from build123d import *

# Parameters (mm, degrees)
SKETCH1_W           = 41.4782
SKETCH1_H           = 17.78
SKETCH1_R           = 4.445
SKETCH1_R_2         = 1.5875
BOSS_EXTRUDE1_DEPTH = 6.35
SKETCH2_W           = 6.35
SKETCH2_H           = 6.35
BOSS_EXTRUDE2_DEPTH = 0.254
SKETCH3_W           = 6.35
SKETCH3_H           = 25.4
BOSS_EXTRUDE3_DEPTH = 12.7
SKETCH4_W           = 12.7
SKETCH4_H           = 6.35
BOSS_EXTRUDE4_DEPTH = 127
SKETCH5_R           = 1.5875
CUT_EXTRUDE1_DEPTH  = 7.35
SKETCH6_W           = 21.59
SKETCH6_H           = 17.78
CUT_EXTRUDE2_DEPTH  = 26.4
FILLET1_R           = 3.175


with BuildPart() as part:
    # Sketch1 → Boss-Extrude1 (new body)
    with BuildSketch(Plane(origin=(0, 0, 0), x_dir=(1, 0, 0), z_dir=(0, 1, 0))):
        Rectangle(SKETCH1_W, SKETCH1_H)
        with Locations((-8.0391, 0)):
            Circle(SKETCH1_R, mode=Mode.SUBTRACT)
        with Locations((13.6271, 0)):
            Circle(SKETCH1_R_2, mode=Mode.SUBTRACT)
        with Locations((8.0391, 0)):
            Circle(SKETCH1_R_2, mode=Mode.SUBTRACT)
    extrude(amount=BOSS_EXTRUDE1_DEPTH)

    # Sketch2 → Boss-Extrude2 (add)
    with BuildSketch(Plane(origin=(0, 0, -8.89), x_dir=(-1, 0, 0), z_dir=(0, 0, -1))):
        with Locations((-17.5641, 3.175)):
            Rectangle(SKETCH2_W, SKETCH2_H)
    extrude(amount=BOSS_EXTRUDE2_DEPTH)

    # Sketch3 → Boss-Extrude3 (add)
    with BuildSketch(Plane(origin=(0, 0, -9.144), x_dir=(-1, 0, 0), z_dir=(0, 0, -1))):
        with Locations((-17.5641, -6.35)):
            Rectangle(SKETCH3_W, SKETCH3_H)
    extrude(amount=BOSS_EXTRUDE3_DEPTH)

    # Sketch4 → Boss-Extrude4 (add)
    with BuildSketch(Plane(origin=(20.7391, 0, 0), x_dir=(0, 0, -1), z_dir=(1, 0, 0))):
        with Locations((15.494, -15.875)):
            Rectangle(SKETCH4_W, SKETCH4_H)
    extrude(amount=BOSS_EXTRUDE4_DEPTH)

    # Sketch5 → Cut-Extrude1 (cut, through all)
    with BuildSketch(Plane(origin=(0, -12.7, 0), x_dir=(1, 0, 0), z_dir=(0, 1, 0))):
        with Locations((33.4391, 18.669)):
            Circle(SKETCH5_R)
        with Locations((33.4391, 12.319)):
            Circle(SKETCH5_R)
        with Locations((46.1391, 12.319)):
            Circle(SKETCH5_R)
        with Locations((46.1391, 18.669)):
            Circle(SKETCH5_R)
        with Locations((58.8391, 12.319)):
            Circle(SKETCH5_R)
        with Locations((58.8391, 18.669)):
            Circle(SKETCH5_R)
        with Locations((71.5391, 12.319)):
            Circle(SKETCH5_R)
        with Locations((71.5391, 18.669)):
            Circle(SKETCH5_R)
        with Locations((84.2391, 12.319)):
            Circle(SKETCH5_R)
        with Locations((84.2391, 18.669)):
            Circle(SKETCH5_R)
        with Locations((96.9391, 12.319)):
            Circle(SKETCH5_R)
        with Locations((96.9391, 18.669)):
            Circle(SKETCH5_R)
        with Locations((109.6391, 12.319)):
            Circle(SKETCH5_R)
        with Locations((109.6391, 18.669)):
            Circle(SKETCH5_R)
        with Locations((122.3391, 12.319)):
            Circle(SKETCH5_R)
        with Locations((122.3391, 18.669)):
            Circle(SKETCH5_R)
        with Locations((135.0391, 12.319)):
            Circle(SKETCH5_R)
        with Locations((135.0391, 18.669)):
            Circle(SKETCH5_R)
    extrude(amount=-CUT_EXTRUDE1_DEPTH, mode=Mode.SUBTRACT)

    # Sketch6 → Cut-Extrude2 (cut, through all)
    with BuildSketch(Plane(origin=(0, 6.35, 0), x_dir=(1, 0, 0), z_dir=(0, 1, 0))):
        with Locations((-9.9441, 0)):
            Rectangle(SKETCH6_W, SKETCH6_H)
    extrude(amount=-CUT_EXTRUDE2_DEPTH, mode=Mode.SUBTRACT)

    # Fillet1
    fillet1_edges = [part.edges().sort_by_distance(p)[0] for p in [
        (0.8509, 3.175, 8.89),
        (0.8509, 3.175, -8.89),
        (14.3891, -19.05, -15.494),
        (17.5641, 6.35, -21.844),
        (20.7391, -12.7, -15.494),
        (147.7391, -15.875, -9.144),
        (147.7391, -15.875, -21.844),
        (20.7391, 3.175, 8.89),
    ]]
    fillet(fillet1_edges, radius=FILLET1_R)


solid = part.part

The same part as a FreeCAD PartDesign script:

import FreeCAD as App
import Part
import Sketcher
from FreeCAD import Vector
Q = App.Units.Quantity


def edges_at(feature, points):
    """Names of the edges that pass closest to the given points."""
    edges = feature.Shape.Edges
    near = lambda p: min(range(len(edges)), key=lambda i: edges[i].distToShape(Part.Vertex(*p))[0])
    return sorted({f"Edge{near(p) + 1}" for p in points})


def add_polygon(sketch, points):
    """Adds a closed chain of lines whose ends are joined by coincident constraints."""
    first, n = sketch.GeometryCount, len(points)
    for a, b in zip(points, points[1:] + points[:1]):
        sketch.addGeometry(Part.LineSegment(App.Vector(*a, 0), App.Vector(*b, 0)), False)
    for i in range(n):
        sketch.addConstraint(Sketcher.Constraint("Coincident", first + i, 2, first + (i + 1) % n, 1))

doc = App.newDocument("Part")
body = doc.addObject("PartDesign::Body", "Body")

# Sketch on XZ plane
sketch1 = body.newObject("Sketcher::SketchObject", "Sketch")
sketch1.AttachmentSupport = (doc.getObject("XZ_Plane"), [""])
sketch1.MapMode = "FlatFace"
add_polygon(sketch1, [(-20.7, -8.9), (-20.7, 8.9), (20.7, 8.9), (20.7, -8.9)])  # lines 0-3
sketch1.addGeometry(Part.Circle(Vector(-8, 0, 0), Vector(0, 0, 1), 4.4), False)  # 4
sketch1.addGeometry(Part.Circle(Vector(8, 0, 0), Vector(0, 0, 1), 1.6), False)  # 5
sketch1.addGeometry(Part.Circle(Vector(13.6, 0, 0), Vector(0, 0, 1), 1.6), False)  # 6
sketch1.addConstraint(Sketcher.Constraint("Vertical", 0))
sketch1.addConstraint(Sketcher.Constraint("Horizontal", 1))
sketch1.addConstraint(Sketcher.Constraint("Vertical", 2))
sketch1.addConstraint(Sketcher.Constraint("Horizontal", 3))
sketch1.addConstraint(Sketcher.Constraint("Equal", 5, 6))
sketch1.addConstraint(Sketcher.Constraint("Symmetric", 4, 3, 5, 3, -1, 1))
sketch1.addConstraint(Sketcher.Constraint("Symmetric", 0, 2, 2, 2, -1, 1))
sketch1.addConstraint(Sketcher.Constraint("PointOnObject", 4, 3, -1))
sketch1.addConstraint(Sketcher.Constraint("PointOnObject", 6, 3, -1))
sketch1.addConstraint(Sketcher.Constraint("Diameter", 4, Q("0.35 in")))
sketch1.addConstraint(Sketcher.Constraint("Diameter", 5, Q("0.125 in")))
sketch1.addConstraint(Sketcher.Constraint("DistanceY", 0, 1, 0, 2, Q("0.7 in")))
sketch1.addConstraint(Sketcher.Constraint("DistanceX", 0, 2, 4, 3, Q("0.5 in")))
sketch1.addConstraint(Sketcher.Constraint("DistanceX", 1, 1, 1, 2, Q("1.633 in")))
sketch1.addConstraint(Sketcher.Constraint("DistanceX", 5, 3, 6, 3, Q("0.22 in")))
pad1 = body.newObject("PartDesign::Pad", "Pad")
pad1.Profile = sketch1
pad1.Length = Q("0.25 in")
pad1.Reversed = True

# Sketch on XY plane
sketch2 = body.newObject("Sketcher::SketchObject", "Sketch001")
sketch2.AttachmentSupport = (doc.getObject("XY_Plane"), [""])
sketch2.MapMode = "FlatFace"
sketch2.AttachmentOffset = App.Placement(Vector(0, 0, -0.35 * 25.4), App.Rotation())
add_polygon(sketch2, [(21, 6), (21, 0), (14, 0), (14, 6)])  # lines 0-3
sketch2.addConstraint(Sketcher.Constraint("Vertical", 0))
sketch2.addConstraint(Sketcher.Constraint("Horizontal", 1))
sketch2.addConstraint(Sketcher.Constraint("Vertical", 2))
sketch2.addConstraint(Sketcher.Constraint("Horizontal", 3))
sketch2.addConstraint(Sketcher.Constraint("PointOnObject", 0, 2, -1))
sketch2.addConstraint(Sketcher.Constraint("Equal", 3, 0))
sketch2.addConstraint(Sketcher.Constraint("DistanceX", 1, 2, 1, 1, Q("0.25 in")))
sketch2.addConstraint(Sketcher.Constraint("DistanceX", -1, 1, 0, 2, Q("0.8165 in")))
pad2 = body.newObject("PartDesign::Pad", "Pad001")
pad2.Profile = sketch2
pad2.Length = Q("0.01 in")
pad2.Reversed = True

# Sketch on XY plane
sketch3 = body.newObject("Sketcher::SketchObject", "Sketch002")
sketch3.AttachmentSupport = (doc.getObject("XY_Plane"), [""])
sketch3.MapMode = "FlatFace"
sketch3.AttachmentOffset = App.Placement(Vector(0, 0, -0.36 * 25.4), App.Rotation())
add_polygon(sketch3, [(21, 6), (21, -19), (14, -19), (14, 6)])  # lines 0-3
sketch3.addConstraint(Sketcher.Constraint("Vertical", 0))
sketch3.addConstraint(Sketcher.Constraint("Horizontal", 1))
sketch3.addConstraint(Sketcher.Constraint("Vertical", 2))
sketch3.addConstraint(Sketcher.Constraint("Horizontal", 3))
sketch3.addConstraint(Sketcher.Constraint("DistanceY", 0, 2, 0, 1, Q("1 in")))
sketch3.addConstraint(Sketcher.Constraint("DistanceX", 1, 2, 1, 1, Q("0.25 in")))
sketch3.addConstraint(Sketcher.Constraint("DistanceY", 0, 2, -1, 1, Q("0.75 in")))
sketch3.addConstraint(Sketcher.Constraint("DistanceX", -1, 1, 0, 2, Q("0.8165 in")))
pad3 = body.newObject("PartDesign::Pad", "Pad002")
pad3.Profile = sketch3
pad3.Length = Q("0.5 in")
pad3.Reversed = True

# Sketch on YZ plane
sketch4 = body.newObject("Sketcher::SketchObject", "Sketch003")
sketch4.AttachmentSupport = (doc.getObject("YZ_Plane"), [""])
sketch4.MapMode = "FlatFace"
sketch4.AttachmentOffset = App.Placement(Vector(0, 0, 0.8165 * 25.4), App.Rotation())
add_polygon(sketch4, [(-13, -9), (-19, -9), (-19, -22), (-13, -22)])  # lines 0-3
sketch4.addConstraint(Sketcher.Constraint("Horizontal", 0))
sketch4.addConstraint(Sketcher.Constraint("Vertical", 1))
sketch4.addConstraint(Sketcher.Constraint("Horizontal", 2))
sketch4.addConstraint(Sketcher.Constraint("Vertical", 3))
sketch4.addConstraint(Sketcher.Constraint("DistanceY", 1, 2, 1, 1, Q("0.5 in")))
sketch4.addConstraint(Sketcher.Constraint("DistanceX", 0, 2, 0, 1, Q("0.25 in")))
sketch4.addConstraint(Sketcher.Constraint("DistanceX", 2, 2, -1, 1, Q("0.5 in")))
sketch4.addConstraint(Sketcher.Constraint("DistanceY", 0, 2, -1, 1, Q("0.36 in")))
pad4 = body.newObject("PartDesign::Pad", "Pad003")
pad4.Profile = sketch4
pad4.Length = Q("5 in")

# Sketch on XZ plane
sketch5 = body.newObject("Sketcher::SketchObject", "Sketch004")
sketch5.AttachmentSupport = (doc.getObject("XZ_Plane"), [""])
sketch5.MapMode = "FlatFace"
sketch5.AttachmentOffset = App.Placement(Vector(0, 0, 0.5 * 25.4), App.Rotation())
sketch5.addGeometry(Part.Circle(Vector(33.4, -18.7, 0), Vector(0, 0, 1), 1.6), False)
sketch5.addGeometry(Part.Circle(Vector(33.4, -12.3, 0), Vector(0, 0, 1), 1.6), False)
sketch5.addGeometry(Part.Circle(Vector(46.1, -12.3, 0), Vector(0, 0, 1), 1.6), False)
sketch5.addGeometry(Part.Circle(Vector(46.1, -18.7, 0), Vector(0, 0, 1), 1.6), False)
sketch5.addGeometry(Part.Circle(Vector(58.8, -12.3, 0), Vector(0, 0, 1), 1.6), False)
sketch5.addGeometry(Part.Circle(Vector(58.8, -18.7, 0), Vector(0, 0, 1), 1.6), False)
sketch5.addGeometry(Part.Circle(Vector(71.5, -12.3, 0), Vector(0, 0, 1), 1.6), False)
sketch5.addGeometry(Part.Circle(Vector(71.5, -18.7, 0), Vector(0, 0, 1), 1.6), False)
sketch5.addGeometry(Part.Circle(Vector(84.2, -12.3, 0), Vector(0, 0, 1), 1.6), False)
sketch5.addGeometry(Part.Circle(Vector(84.2, -18.7, 0), Vector(0, 0, 1), 1.6), False)
sketch5.addGeometry(Part.Circle(Vector(96.9, -12.3, 0), Vector(0, 0, 1), 1.6), False)
sketch5.addGeometry(Part.Circle(Vector(96.9, -18.7, 0), Vector(0, 0, 1), 1.6), False)
sketch5.addGeometry(Part.Circle(Vector(109.6, -12.3, 0), Vector(0, 0, 1), 1.6), False)
sketch5.addGeometry(Part.Circle(Vector(109.6, -18.7, 0), Vector(0, 0, 1), 1.6), False)
sketch5.addGeometry(Part.Circle(Vector(122.3, -12.3, 0), Vector(0, 0, 1), 1.6), False)
sketch5.addGeometry(Part.Circle(Vector(122.3, -18.7, 0), Vector(0, 0, 1), 1.6), False)
sketch5.addGeometry(Part.Circle(Vector(135, -12.3, 0), Vector(0, 0, 1), 1.6), False)
sketch5.addGeometry(Part.Circle(Vector(135, -18.7, 0), Vector(0, 0, 1), 1.6), False)
sketch5.addConstraint(Sketcher.Constraint("Equal", 0, 1))
sketch5.addConstraint(Sketcher.Constraint("Equal", 1, 2))
sketch5.addConstraint(Sketcher.Constraint("Equal", 2, 3))
sketch5.addConstraint(Sketcher.Constraint("Equal", 3, 4))
sketch5.addConstraint(Sketcher.Constraint("Equal", 4, 5))
sketch5.addConstraint(Sketcher.Constraint("Equal", 5, 6))
sketch5.addConstraint(Sketcher.Constraint("Equal", 6, 7))
sketch5.addConstraint(Sketcher.Constraint("Equal", 7, 8))
sketch5.addConstraint(Sketcher.Constraint("Equal", 8, 9))
sketch5.addConstraint(Sketcher.Constraint("Equal", 9, 10))
sketch5.addConstraint(Sketcher.Constraint("Equal", 10, 11))
sketch5.addConstraint(Sketcher.Constraint("Equal", 11, 12))
sketch5.addConstraint(Sketcher.Constraint("Equal", 12, 13))
sketch5.addConstraint(Sketcher.Constraint("Equal", 13, 14))
sketch5.addConstraint(Sketcher.Constraint("Equal", 14, 15))
sketch5.addConstraint(Sketcher.Constraint("Equal", 15, 16))
sketch5.addConstraint(Sketcher.Constraint("Equal", 16, 17))
sketch5.addConstraint(Sketcher.Constraint("Horizontal", 1, 3, 2, 3))
sketch5.addConstraint(Sketcher.Constraint("Horizontal", 0, 3, 3, 3))
sketch5.addConstraint(Sketcher.Constraint("Horizontal", 2, 3, 4, 3))
sketch5.addConstraint(Sketcher.Constraint("Horizontal", 3, 3, 5, 3))
sketch5.addConstraint(Sketcher.Constraint("Horizontal", 4, 3, 6, 3))
sketch5.addConstraint(Sketcher.Constraint("Horizontal", 5, 3, 7, 3))
sketch5.addConstraint(Sketcher.Constraint("Horizontal", 6, 3, 8, 3))
sketch5.addConstraint(Sketcher.Constraint("Horizontal", 7, 3, 9, 3))
sketch5.addConstraint(Sketcher.Constraint("Horizontal", 8, 3, 10, 3))
sketch5.addConstraint(Sketcher.Constraint("Horizontal", 9, 3, 11, 3))
sketch5.addConstraint(Sketcher.Constraint("Horizontal", 10, 3, 12, 3))
sketch5.addConstraint(Sketcher.Constraint("Horizontal", 11, 3, 13, 3))
sketch5.addConstraint(Sketcher.Constraint("Horizontal", 12, 3, 14, 3))
sketch5.addConstraint(Sketcher.Constraint("Horizontal", 13, 3, 15, 3))
sketch5.addConstraint(Sketcher.Constraint("Horizontal", 14, 3, 16, 3))
sketch5.addConstraint(Sketcher.Constraint("Horizontal", 15, 3, 17, 3))
sketch5.addConstraint(Sketcher.Constraint("Vertical", 0, 3, 1, 3))
sketch5.addConstraint(Sketcher.Constraint("Vertical", 2, 3, 3, 3))
sketch5.addConstraint(Sketcher.Constraint("Vertical", 4, 3, 5, 3))
sketch5.addConstraint(Sketcher.Constraint("Vertical", 6, 3, 7, 3))
sketch5.addConstraint(Sketcher.Constraint("Vertical", 8, 3, 9, 3))
sketch5.addConstraint(Sketcher.Constraint("Vertical", 10, 3, 11, 3))
sketch5.addConstraint(Sketcher.Constraint("Vertical", 12, 3, 13, 3))
sketch5.addConstraint(Sketcher.Constraint("Vertical", 14, 3, 15, 3))
sketch5.addConstraint(Sketcher.Constraint("Vertical", 16, 3, 17, 3))
sketch5.addConstraint(Sketcher.Constraint("Diameter", 0, Q("0.125 in")))
sketch5.addConstraint(Sketcher.Constraint("DistanceX", 1, 3, 4, 3, Q("1 in")))
sketch5.addConstraint(Sketcher.Constraint("DistanceX", 2, 3, 6, 3, Q("1 in")))
sketch5.addConstraint(Sketcher.Constraint("DistanceX", 4, 3, 8, 3, Q("1 in")))
sketch5.addConstraint(Sketcher.Constraint("DistanceX", 6, 3, 10, 3, Q("1 in")))
sketch5.addConstraint(Sketcher.Constraint("DistanceX", 8, 3, 12, 3, Q("1 in")))
sketch5.addConstraint(Sketcher.Constraint("DistanceX", 10, 3, 14, 3, Q("1 in")))
sketch5.addConstraint(Sketcher.Constraint("DistanceX", 12, 3, 16, 3, Q("1 in")))
sketch5.addConstraint(Sketcher.Constraint("DistanceX", 1, 3, 2, 3, Q("0.5 in")))
sketch5.addConstraint(Sketcher.Constraint("DistanceY", 0, 3, 1, 3, Q("0.25 in")))
sketch5.addConstraint(Sketcher.Constraint("DistanceY", 0, 3, -1, 1, Q("0.735 in")))
sketch5.addConstraint(Sketcher.Constraint("DistanceX", -1, 1, 0, 3, Q("1.3165 in")))
pocket1 = body.newObject("PartDesign::Pocket", "Pocket")
pocket1.Profile = sketch5
pocket1.Type = "ThroughAll"
pocket1.Reversed = True

# Sketch on XZ plane
sketch6 = body.newObject("Sketcher::SketchObject", "Sketch005")
sketch6.AttachmentSupport = (doc.getObject("XZ_Plane"), [""])
sketch6.MapMode = "FlatFace"
sketch6.AttachmentOffset = App.Placement(Vector(0, 0, -0.25 * 25.4), App.Rotation())
add_polygon(sketch6, [(-21, -9), (-21, 9), (1, 9), (1, -9)])  # lines 0-3
sketch6.addConstraint(Sketcher.Constraint("Vertical", 0))
sketch6.addConstraint(Sketcher.Constraint("Horizontal", 1))
sketch6.addConstraint(Sketcher.Constraint("Vertical", 2))
sketch6.addConstraint(Sketcher.Constraint("Horizontal", 3))
sketch6.addConstraint(Sketcher.Constraint("DistanceY", 0, 1, 0, 2, Q("0.7 in")))
sketch6.addConstraint(Sketcher.Constraint("DistanceX", 1, 1, 1, 2, Q("0.85 in")))
sketch6.addConstraint(Sketcher.Constraint("DistanceY", -1, 1, 0, 2, Q("0.35 in")))
sketch6.addConstraint(Sketcher.Constraint("DistanceX", 0, 2, -1, 1, Q("0.8165 in")))
pocket2 = body.newObject("PartDesign::Pocket", "Pocket001")
pocket2.Profile = sketch6
pocket2.Type = "ThroughAll"
pocket2.Reversed = True
doc.recompute()

fillet = body.newObject("PartDesign::Fillet", "Fillet")
fillet.Base = (pocket2, edges_at(pocket2, [
    (0.851, 3.175, 8.89),
    (0.851, 3.175, -8.89),
    (14.389, -19.05, -15.494),
    (17.564, 6.35, -21.844),
    (20.739, -12.7, -15.494),
    (147.739, -15.875, -9.144),
    (147.739, -15.875, -21.844),
    (20.739, 3.175, 8.89),
]))
fillet.Radius = Q("0.125 in")

doc.recompute()
